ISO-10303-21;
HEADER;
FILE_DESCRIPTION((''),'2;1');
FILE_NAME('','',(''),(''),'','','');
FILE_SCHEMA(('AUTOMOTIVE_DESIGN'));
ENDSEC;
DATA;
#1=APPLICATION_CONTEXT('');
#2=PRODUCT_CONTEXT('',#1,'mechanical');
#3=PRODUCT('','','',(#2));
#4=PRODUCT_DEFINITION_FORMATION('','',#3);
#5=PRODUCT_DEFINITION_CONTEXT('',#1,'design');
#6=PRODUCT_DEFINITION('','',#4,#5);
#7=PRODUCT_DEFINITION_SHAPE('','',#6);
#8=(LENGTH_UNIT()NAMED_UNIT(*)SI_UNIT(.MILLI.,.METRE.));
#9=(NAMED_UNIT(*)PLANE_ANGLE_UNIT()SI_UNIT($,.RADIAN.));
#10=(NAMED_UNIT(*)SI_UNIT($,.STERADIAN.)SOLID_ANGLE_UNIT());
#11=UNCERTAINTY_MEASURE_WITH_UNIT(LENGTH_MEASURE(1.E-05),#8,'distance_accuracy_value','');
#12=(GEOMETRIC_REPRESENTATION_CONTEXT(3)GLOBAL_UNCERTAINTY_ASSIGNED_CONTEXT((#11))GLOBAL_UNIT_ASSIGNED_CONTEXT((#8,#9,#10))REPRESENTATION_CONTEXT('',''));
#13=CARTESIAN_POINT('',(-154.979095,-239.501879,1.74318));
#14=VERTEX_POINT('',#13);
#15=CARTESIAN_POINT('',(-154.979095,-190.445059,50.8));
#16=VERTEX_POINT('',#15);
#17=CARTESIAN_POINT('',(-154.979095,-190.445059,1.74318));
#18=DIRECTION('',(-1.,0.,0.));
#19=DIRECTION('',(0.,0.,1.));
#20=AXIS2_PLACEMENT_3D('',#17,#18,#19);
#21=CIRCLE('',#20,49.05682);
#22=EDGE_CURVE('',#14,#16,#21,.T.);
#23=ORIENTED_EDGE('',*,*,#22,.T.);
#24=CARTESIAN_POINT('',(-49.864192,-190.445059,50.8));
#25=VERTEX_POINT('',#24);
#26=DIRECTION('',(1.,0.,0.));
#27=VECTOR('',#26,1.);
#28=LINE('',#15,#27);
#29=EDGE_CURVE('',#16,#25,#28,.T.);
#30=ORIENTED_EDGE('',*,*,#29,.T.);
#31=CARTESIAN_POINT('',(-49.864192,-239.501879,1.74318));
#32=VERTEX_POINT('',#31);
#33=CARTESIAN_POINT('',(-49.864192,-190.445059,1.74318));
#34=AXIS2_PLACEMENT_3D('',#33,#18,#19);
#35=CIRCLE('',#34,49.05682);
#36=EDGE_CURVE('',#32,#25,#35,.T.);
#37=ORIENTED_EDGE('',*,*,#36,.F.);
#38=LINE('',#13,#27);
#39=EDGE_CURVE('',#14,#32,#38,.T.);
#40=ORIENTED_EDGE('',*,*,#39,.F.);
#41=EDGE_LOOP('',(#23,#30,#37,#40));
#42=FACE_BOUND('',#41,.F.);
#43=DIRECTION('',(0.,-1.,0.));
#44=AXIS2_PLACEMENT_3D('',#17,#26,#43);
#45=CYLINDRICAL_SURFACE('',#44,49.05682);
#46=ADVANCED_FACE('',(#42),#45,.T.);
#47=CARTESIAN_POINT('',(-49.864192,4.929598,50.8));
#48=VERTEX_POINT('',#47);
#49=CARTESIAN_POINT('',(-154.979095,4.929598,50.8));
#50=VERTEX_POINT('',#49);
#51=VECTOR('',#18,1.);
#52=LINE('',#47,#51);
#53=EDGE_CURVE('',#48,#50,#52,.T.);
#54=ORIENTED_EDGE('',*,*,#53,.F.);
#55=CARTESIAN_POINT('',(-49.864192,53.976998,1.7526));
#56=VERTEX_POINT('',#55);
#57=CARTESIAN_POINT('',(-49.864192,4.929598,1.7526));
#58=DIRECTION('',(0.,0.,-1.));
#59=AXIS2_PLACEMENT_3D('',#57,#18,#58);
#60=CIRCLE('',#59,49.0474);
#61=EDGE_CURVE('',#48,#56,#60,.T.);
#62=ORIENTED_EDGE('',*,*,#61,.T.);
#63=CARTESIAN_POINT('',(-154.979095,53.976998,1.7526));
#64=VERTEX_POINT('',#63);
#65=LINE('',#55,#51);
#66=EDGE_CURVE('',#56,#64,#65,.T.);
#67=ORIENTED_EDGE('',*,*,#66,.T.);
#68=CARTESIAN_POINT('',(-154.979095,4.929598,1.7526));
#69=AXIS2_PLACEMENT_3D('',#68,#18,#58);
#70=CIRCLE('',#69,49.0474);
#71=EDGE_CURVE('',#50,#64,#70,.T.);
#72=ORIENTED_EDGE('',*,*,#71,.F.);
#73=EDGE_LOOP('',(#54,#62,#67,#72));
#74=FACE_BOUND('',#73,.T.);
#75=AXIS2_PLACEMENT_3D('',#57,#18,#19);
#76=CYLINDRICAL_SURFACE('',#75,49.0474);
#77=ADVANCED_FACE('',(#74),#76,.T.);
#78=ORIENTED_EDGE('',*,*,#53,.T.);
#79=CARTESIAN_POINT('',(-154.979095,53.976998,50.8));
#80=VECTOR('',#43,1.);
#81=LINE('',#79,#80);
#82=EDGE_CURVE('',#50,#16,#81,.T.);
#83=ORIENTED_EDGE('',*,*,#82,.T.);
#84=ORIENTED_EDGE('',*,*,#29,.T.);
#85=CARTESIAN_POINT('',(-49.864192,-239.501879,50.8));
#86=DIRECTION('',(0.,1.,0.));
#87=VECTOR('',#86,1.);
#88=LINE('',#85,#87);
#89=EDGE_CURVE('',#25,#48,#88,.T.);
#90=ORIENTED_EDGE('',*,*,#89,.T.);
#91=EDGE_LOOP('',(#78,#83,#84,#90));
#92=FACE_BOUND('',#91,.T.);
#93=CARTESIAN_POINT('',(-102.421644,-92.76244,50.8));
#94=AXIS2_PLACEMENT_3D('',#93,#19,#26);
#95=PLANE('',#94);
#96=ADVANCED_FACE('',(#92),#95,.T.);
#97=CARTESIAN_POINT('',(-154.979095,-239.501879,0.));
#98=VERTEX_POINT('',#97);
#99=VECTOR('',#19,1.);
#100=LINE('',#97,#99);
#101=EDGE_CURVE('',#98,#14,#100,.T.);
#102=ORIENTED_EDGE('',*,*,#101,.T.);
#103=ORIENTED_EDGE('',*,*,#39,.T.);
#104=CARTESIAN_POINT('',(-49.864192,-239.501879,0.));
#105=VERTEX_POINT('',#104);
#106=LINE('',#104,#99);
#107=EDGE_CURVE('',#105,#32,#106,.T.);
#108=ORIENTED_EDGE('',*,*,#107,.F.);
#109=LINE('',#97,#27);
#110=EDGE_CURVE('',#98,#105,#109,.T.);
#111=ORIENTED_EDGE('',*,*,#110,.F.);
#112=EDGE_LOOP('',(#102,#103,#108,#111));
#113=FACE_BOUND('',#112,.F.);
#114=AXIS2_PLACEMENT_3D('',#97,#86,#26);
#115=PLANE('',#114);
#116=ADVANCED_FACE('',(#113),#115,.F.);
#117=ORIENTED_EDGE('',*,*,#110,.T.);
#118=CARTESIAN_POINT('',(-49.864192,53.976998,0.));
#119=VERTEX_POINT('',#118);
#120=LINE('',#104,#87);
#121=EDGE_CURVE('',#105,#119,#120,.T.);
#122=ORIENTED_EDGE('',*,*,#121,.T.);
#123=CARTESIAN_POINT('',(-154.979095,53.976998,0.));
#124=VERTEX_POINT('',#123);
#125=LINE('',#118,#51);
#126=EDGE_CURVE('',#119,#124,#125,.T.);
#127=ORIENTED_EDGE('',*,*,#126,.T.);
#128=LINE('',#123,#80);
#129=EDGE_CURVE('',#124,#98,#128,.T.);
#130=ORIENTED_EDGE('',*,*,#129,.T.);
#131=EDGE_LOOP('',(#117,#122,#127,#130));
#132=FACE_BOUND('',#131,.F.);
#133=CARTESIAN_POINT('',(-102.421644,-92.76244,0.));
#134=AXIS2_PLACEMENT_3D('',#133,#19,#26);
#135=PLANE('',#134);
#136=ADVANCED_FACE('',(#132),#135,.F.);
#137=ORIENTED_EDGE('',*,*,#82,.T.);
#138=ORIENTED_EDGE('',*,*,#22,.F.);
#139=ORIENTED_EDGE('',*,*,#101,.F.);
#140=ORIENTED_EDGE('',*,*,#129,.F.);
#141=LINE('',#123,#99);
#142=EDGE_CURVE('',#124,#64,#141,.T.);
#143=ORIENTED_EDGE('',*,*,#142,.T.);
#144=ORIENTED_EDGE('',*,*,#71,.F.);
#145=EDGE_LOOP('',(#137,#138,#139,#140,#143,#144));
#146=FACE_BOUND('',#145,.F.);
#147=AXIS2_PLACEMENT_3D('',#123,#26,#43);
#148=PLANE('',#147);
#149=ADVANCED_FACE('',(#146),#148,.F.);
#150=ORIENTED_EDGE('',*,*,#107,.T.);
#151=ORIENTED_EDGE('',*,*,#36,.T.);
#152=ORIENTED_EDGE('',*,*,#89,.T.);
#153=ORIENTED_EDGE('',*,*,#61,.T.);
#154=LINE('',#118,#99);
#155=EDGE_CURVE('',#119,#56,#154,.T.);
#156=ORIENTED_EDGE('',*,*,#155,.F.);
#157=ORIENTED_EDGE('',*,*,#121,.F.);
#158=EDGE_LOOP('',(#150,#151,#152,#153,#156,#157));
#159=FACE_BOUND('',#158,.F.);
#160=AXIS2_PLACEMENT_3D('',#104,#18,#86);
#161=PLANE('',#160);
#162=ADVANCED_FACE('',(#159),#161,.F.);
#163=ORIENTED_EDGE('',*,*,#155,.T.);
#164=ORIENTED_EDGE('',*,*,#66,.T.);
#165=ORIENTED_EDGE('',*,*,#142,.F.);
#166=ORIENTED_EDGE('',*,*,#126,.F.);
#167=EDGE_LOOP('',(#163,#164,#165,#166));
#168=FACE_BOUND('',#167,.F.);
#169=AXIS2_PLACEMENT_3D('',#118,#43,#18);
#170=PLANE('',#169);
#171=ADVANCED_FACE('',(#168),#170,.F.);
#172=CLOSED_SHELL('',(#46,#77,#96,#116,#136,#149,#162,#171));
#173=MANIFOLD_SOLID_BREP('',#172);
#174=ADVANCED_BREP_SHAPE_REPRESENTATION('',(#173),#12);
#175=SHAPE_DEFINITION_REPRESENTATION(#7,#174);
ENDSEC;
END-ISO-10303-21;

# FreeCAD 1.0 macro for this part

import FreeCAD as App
import Part
import Sketcher

V = App.Vector
Q = App.Units.Quantity


def edges_at(feature, points):
    """Names of the edges that pass closest to the given points."""
    edges = feature.Shape.Edges
    near = lambda p: min(range(len(edges)), key=lambda i: edges[i].distToShape(Part.Vertex(*p))[0])
    return sorted({f"Edge{near(p) + 1}" for p in points})

doc = App.newDocument("Part")
body = doc.addObject("PartDesign::Body", "Body")

sketch1 = body.newObject("Sketcher::SketchObject", "Sketch")
sketch1.AttachmentSupport = (doc.getObject("XY_Plane"), [""])
sketch1.MapMode = "FlatFace"
sketch1.addGeometry(Part.LineSegment(V(-50, 54, 0), V(-155, 54, 0)), False)
sketch1.addGeometry(Part.LineSegment(V(-155, 54, 0), V(-155, -240, 0)), False)
sketch1.addGeometry(Part.LineSegment(V(-155, -240, 0), V(-50, -240, 0)), False)
sketch1.addGeometry(Part.LineSegment(V(-50, -240, 0), V(-50, 54, 0)), False)
sketch1.addConstraint(Sketcher.Constraint("Coincident", 0, 2, 1, 1))
sketch1.addConstraint(Sketcher.Constraint("Coincident", 1, 2, 2, 1))
sketch1.addConstraint(Sketcher.Constraint("Coincident", 2, 2, 3, 1))
sketch1.addConstraint(Sketcher.Constraint("Coincident", 3, 2, 0, 1))
sketch1.addConstraint(Sketcher.Constraint("Horizontal", 0))
sketch1.addConstraint(Sketcher.Constraint("Vertical", 1))
sketch1.addConstraint(Sketcher.Constraint("Horizontal", 2))
sketch1.addConstraint(Sketcher.Constraint("Vertical", 3))
sketch1.addConstraint(Sketcher.Constraint("DistanceY", -1, 1, 0, 2, 53.976998))
sketch1.addConstraint(Sketcher.Constraint("DistanceX", 0, 2, 0, 1, 105.114903))
sketch1.addConstraint(Sketcher.Constraint("DistanceY", 1, 2, 1, 1, 293.478877))
sketch1.addConstraint(Sketcher.Constraint("DistanceX", 0, 2, -1, 1, 154.979095))
pad1 = body.newObject("PartDesign::Pad", "Pad")
pad1.Profile = sketch1
pad1.Length = Q("2 in")
doc.recompute()

fillet = body.newObject("PartDesign::Fillet", "Fillet")
fillet.Base = (pad1, edges_at(pad1, [(-102.422, -239.502, 50.8)]))
fillet.Radius = 49.05682
doc.recompute()

fillet2 = body.newObject("PartDesign::Fillet", "Fillet001")
fillet2.Base = (fillet, edges_at(fillet, [(-102.422, 53.977, 50.8)]))
fillet2.Radius = Q("1.931 in")

doc.recompute()
